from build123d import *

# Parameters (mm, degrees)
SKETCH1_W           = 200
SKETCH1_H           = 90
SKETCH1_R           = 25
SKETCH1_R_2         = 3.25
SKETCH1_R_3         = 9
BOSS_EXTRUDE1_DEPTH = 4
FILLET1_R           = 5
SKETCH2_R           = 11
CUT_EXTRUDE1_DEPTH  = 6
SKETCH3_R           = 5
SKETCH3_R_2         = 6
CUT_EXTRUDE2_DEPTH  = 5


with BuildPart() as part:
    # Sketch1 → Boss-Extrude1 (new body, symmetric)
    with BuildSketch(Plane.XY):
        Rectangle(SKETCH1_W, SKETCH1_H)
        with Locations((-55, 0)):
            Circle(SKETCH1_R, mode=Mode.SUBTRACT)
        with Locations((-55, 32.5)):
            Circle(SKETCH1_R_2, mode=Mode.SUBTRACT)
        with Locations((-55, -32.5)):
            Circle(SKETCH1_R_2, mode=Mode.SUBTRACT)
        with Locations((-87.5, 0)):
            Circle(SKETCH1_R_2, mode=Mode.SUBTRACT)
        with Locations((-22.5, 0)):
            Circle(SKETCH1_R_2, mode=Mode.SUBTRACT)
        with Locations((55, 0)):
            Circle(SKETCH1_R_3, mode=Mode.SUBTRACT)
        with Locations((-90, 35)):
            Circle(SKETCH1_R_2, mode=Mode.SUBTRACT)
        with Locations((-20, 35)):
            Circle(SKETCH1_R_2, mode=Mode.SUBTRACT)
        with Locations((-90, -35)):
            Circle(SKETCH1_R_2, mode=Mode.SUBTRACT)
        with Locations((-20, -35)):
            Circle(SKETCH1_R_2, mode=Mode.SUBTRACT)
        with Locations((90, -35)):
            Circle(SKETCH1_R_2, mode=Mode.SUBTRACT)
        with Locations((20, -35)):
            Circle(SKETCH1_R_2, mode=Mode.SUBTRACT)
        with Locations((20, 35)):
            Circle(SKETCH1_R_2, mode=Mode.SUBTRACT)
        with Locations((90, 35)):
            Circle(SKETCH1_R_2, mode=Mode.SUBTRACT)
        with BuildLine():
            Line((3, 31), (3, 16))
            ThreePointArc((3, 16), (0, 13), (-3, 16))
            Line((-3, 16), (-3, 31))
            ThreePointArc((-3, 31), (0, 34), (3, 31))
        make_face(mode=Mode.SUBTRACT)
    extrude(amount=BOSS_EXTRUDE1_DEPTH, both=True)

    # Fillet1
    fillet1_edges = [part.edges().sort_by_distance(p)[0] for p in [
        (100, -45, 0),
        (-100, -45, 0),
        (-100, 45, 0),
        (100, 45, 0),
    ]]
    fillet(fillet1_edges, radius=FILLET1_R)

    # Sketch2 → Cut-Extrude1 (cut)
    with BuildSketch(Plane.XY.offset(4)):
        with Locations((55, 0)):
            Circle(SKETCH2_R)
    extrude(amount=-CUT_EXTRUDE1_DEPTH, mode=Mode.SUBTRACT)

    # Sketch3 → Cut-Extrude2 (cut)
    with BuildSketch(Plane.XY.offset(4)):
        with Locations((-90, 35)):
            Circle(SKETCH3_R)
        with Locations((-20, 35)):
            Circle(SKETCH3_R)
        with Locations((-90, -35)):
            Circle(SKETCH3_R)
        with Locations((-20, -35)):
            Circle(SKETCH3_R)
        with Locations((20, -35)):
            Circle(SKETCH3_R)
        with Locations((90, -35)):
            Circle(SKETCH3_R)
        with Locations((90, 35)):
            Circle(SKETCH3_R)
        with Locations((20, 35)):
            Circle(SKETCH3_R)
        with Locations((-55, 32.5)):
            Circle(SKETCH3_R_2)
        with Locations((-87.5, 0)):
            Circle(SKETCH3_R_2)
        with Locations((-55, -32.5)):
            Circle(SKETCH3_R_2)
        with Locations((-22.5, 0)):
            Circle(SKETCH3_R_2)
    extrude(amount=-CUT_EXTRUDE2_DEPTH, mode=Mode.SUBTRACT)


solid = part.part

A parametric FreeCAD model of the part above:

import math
import FreeCAD as App
import Part
import Sketcher

V = App.Vector


def edges_at(feature, points):
    """Names of the edges that pass closest to the given points."""
    edges = feature.Shape.Edges
    near = lambda p: min(range(len(edges)), key=lambda i: edges[i].distToShape(Part.Vertex(*p))[0])
    return sorted({f"Edge{near(p) + 1}" for p in points})


def add_polygon(sketch, points):
    """Adds a closed chain of lines whose ends are joined by coincident constraints."""
    first, n = sketch.GeometryCount, len(points)
    for a, b in zip(points, points[1:] + points[:1]):
        sketch.addGeometry(Part.LineSegment(App.Vector(*a, 0), App.Vector(*b, 0)), False)
    for i in range(n):
        sketch.addConstraint(Sketcher.Constraint("Coincident", first + i, 2, first + (i + 1) % n, 1))

doc = App.newDocument("Part")
body = doc.addObject("PartDesign::Body", "Body")

sketch1 = body.newObject("Sketcher::SketchObject", "Sketch")
sketch1.AttachmentSupport = (doc.getObject("XY_Plane"), [""])
sketch1.MapMode = "FlatFace"
add_polygon(sketch1, [(-100, 45), (-100, -45), (100, -45), (100, 45)])
sketch1.addGeometry(Part.Circle(V(-90, -35, 0), V(0, 0, 1), 3.25), False)
sketch1.addGeometry(Part.Circle(V(-55, -32.5, 0), V(0, 0, 1), 3.25), False)
sketch1.addGeometry(Part.Circle(V(-20, -35, 0), V(0, 0, 1), 3.25), False)
sketch1.addGeometry(Part.Circle(V(20, -35, 0), V(0, 0, 1), 3.25), False)
sketch1.addGeometry(Part.Circle(V(90, -35, 0), V(0, 0, 1), 3.25), False)
sketch1.addGeometry(Part.Circle(V(-87.5, 0, 0), V(0, 0, 1), 3.25), False)
sketch1.addGeometry(Part.Circle(V(-55, 0, 0), V(0, 0, 1), 25), False)
sketch1.addGeometry(Part.Circle(V(-22.5, 0, 0), V(0, 0, 1), 3.25), False)
sketch1.addGeometry(Part.Circle(V(-90, 35, 0), V(0, 0, 1), 3.25), False)
sketch1.addGeometry(Part.Circle(V(-55, 32.5, 0), V(0, 0, 1), 3.25), False)
sketch1.addGeometry(Part.Circle(V(-20, 35, 0), V(0, 0, 1), 3.25), False)
sketch1.addGeometry(Part.Circle(V(55, 0, 0), V(0, 0, 1), 9), False)
sketch1.addGeometry(Part.ArcOfCircle(Part.Circle(V(0, 31, 0), V(0, 0, 1), 3), math.radians(0), math.radians(180)), False)
sketch1.addGeometry(Part.LineSegment(V(3, 31, 0), V(3, 16, 0)), False)
sketch1.addGeometry(Part.ArcOfCircle(Part.Circle(V(0, 16, 0), V(0, 0, 1), 3), math.radians(180), math.radians(360)), False)
sketch1.addGeometry(Part.LineSegment(V(-3, 16, 0), V(-3, 31, 0)), False)
sketch1.addGeometry(Part.Circle(V(20, 35, 0), V(0, 0, 1), 3.25), False)
sketch1.addGeometry(Part.Circle(V(90, 35, 0), V(0, 0, 1), 3.25), False)
sketch1.addConstraint(Sketcher.Constraint("Tangent", 16, 1, 17, 1))
sketch1.addConstraint(Sketcher.Constraint("Tangent", 17, 2, 18, 2))
sketch1.addConstraint(Sketcher.Constraint("Tangent", 18, 1, 19, 1))
sketch1.addConstraint(Sketcher.Constraint("Tangent", 19, 2, 16, 2))
sketch1.addConstraint(Sketcher.Constraint("Vertical", 0))
sketch1.addConstraint(Sketcher.Constraint("Horizontal", 1))
sketch1.addConstraint(Sketcher.Constraint("Vertical", 2))
sketch1.addConstraint(Sketcher.Constraint("Horizontal", 3))
sketch1.addConstraint(Sketcher.Constraint("Vertical", 17))
sketch1.addConstraint(Sketcher.Constraint("Vertical", 19))
sketch1.addConstraint(Sketcher.Constraint("Equal", 4, 5))
sketch1.addConstraint(Sketcher.Constraint("Equal", 5, 6))
sketch1.addConstraint(Sketcher.Constraint("Equal", 6, 7))
sketch1.addConstraint(Sketcher.Constraint("Equal", 7, 8))
sketch1.addConstraint(Sketcher.Constraint("Equal", 8, 9))
sketch1.addConstraint(Sketcher.Constraint("Equal", 9, 11))
sketch1.addConstraint(Sketcher.Constraint("Equal", 11, 12))
sketch1.addConstraint(Sketcher.Constraint("Equal", 12, 13))
sketch1.addConstraint(Sketcher.Constraint("Equal", 13, 14))
sketch1.addConstraint(Sketcher.Constraint("Equal", 14, 20))
sketch1.addConstraint(Sketcher.Constraint("Equal", 20, 21))
sketch1.addConstraint(Sketcher.Constraint("Symmetric", 8, 3, 12, 3, -1, 1))
sketch1.addConstraint(Sketcher.Constraint("Symmetric", 7, 3, 14, 3, -1, 1))
sketch1.addConstraint(Sketcher.Constraint("Symmetric", 10, 3, 15, 3, -1, 1))
sketch1.addConstraint(Sketcher.Constraint("Symmetric", 6, 3, 20, 3, -1, 1))
sketch1.addConstraint(Sketcher.Constraint("Symmetric", 4, 3, 21, 3, -1, 1))
sketch1.addConstraint(Sketcher.Constraint("Symmetric", 0, 2, 2, 2, -1, 1))
sketch1.addConstraint(Sketcher.Constraint("Symmetric", 6, 3, 7, 3, -2))
sketch1.addConstraint(Sketcher.Constraint("Symmetric", 4, 3, 8, 3, -2))
sketch1.addConstraint(Sketcher.Constraint("Symmetric", 5, 3, 13, 3, -1))
sketch1.addConstraint(Sketcher.Constraint("PointOnObject", 9, 3, -1))
sketch1.addConstraint(Sketcher.Constraint("PointOnObject", 10, 3, -1))
sketch1.addConstraint(Sketcher.Constraint("PointOnObject", 11, 3, -1))
sketch1.addConstraint(Sketcher.Constraint("PointOnObject", 16, 3, -2))
sketch1.addConstraint(Sketcher.Constraint("Horizontal", 4, 3, 6, 3))
sketch1.addConstraint(Sketcher.Constraint("Vertical", 5, 3, 10, 3))
sketch1.addConstraint(Sketcher.Constraint("Diameter", 10, 50.0))
sketch1.addConstraint(Sketcher.Constraint("Diameter", 15, 18.0))
sketch1.addConstraint(Sketcher.Constraint("Radius", 16, 3.0))
sketch1.addConstraint(Sketcher.Constraint("Diameter", 4, 6.5))
sketch1.addConstraint(Sketcher.Constraint("DistanceX", 1, 1, 1, 2, 200.0))
sketch1.addConstraint(Sketcher.Constraint("DistanceY", 0, 2, 0, 1, 90.0))
sketch1.addConstraint(Sketcher.Constraint("DistanceY", 17, 2, 17, 1, 15.0))
sketch1.addConstraint(Sketcher.Constraint("DistanceX", 4, 3, -1, 1, 90.0))
sketch1.addConstraint(Sketcher.Constraint("DistanceY", 4, 3, -1, 1, 35.0))
sketch1.addConstraint(Sketcher.Constraint("DistanceX", 5, 3, -1, 1, 55.0))
sketch1.addConstraint(Sketcher.Constraint("DistanceX", 6, 3, -1, 1, 20.0))
sketch1.addConstraint(Sketcher.Constraint("DistanceY", -1, 1, 16, 3, 31.0))
sketch1.addConstraint(Sketcher.Constraint("DistanceX", 9, 3, 11, 3, 65.0))
sketch1.addConstraint(Sketcher.Constraint("DistanceY", 5, 3, 13, 3, 65.0))
sketch1.addConstraint(Sketcher.Constraint("DistanceX", 9, 3, -1, 1, 87.5))
pad1 = body.newObject("PartDesign::Pad", "Pad")
pad1.Profile = sketch1
pad1.Length = 8
pad1.Midplane = True
doc.recompute()

fillet = body.newObject("PartDesign::Fillet", "Fillet")
fillet.Base = (pad1, edges_at(pad1, [
    (100, -45, 0),
    (-100, -45, 0),
    (-100, 45, 0),
    (100, 45, 0),
]))
fillet.Radius = 5

sketch2 = body.newObject("Sketcher::SketchObject", "Sketch001")
sketch2.AttachmentSupport = (doc.getObject("XY_Plane"), [""])
sketch2.MapMode = "FlatFace"
sketch2.AttachmentOffset = App.Placement(V(0, 0, 4), App.Rotation())
sketch2.addGeometry(Part.Circle(V(55, 0, 0), V(0, 0, 1), 11), False)
sketch2.addConstraint(Sketcher.Constraint("PointOnObject", 0, 3, -1))
sketch2.addConstraint(Sketcher.Constraint("Diameter", 0, 22.0))
sketch2.addConstraint(Sketcher.Constraint("DistanceX", -1, 1, 0, 3, 55.0))
pocket1 = body.newObject("PartDesign::Pocket", "Pocket")
pocket1.Profile = sketch2
pocket1.Length = 6

sketch3 = body.newObject("Sketcher::SketchObject", "Sketch002")
sketch3.AttachmentSupport = (doc.getObject("XY_Plane"), [""])
sketch3.MapMode = "FlatFace"
sketch3.AttachmentOffset = App.Placement(V(0, 0, 4), App.Rotation())
sketch3.addGeometry(Part.Circle(V(-90, 35, 0), V(0, 0, 1), 5), False)
sketch3.addGeometry(Part.Circle(V(-20, 35, 0), V(0, 0, 1), 5), False)
sketch3.addGeometry(Part.Circle(V(-90, -35, 0), V(0, 0, 1), 5), False)
sketch3.addGeometry(Part.Circle(V(-20, -35, 0), V(0, 0, 1), 5), False)
sketch3.addGeometry(Part.Circle(V(20, -35, 0), V(0, 0, 1), 5), False)
sketch3.addGeometry(Part.Circle(V(90, -35, 0), V(0, 0, 1), 5), False)
sketch3.addGeometry(Part.Circle(V(90, 35, 0), V(0, 0, 1), 5), False)
sketch3.addGeometry(Part.Circle(V(20, 35, 0), V(0, 0, 1), 5), False)
sketch3.addGeometry(Part.Circle(V(-55, 32.5, 0), V(0, 0, 1), 6), False)
sketch3.addGeometry(Part.Circle(V(-87.5, 0, 0), V(0, 0, 1), 6), False)
sketch3.addGeometry(Part.Circle(V(-55, -32.5, 0), V(0, 0, 1), 6), False)
sketch3.addGeometry(Part.Circle(V(-22.5, 0, 0), V(0, 0, 1), 6), False)
sketch3.addConstraint(Sketcher.Constraint("Equal", 0, 1))
sketch3.addConstraint(Sketcher.Constraint("Equal", 1, 2))
sketch3.addConstraint(Sketcher.Constraint("Equal", 2, 3))
sketch3.addConstraint(Sketcher.Constraint("Equal", 3, 4))
sketch3.addConstraint(Sketcher.Constraint("Equal", 4, 5))
sketch3.addConstraint(Sketcher.Constraint("Equal", 5, 6))
sketch3.addConstraint(Sketcher.Constraint("Equal", 6, 7))
sketch3.addConstraint(Sketcher.Constraint("Equal", 8, 9))
sketch3.addConstraint(Sketcher.Constraint("Equal", 9, 10))
sketch3.addConstraint(Sketcher.Constraint("Equal", 10, 11))
sketch3.addConstraint(Sketcher.Constraint("Symmetric", 1, 3, 4, 3, -1, 1))
sketch3.addConstraint(Sketcher.Constraint("Symmetric", 0, 3, 5, 3, -1, 1))
sketch3.addConstraint(Sketcher.Constraint("Symmetric", 2, 3, 6, 3, -1, 1))
sketch3.addConstraint(Sketcher.Constraint("Symmetric", 3, 3, 7, 3, -1, 1))
sketch3.addConstraint(Sketcher.Constraint("Symmetric", 3, 3, 4, 3, -2))
sketch3.addConstraint(Sketcher.Constraint("Symmetric", 2, 3, 5, 3, -2))
sketch3.addConstraint(Sketcher.Constraint("Symmetric", 8, 3, 10, 3, -1))
sketch3.addConstraint(Sketcher.Constraint("PointOnObject", 9, 3, -1))
sketch3.addConstraint(Sketcher.Constraint("PointOnObject", 11, 3, -1))
sketch3.addConstraint(Sketcher.Constraint("Horizontal", 0, 3, 1, 3))
sketch3.addConstraint(Sketcher.Constraint("Diameter", 0, 10.0))
sketch3.addConstraint(Sketcher.Constraint("Diameter", 8, 12.0))
sketch3.addConstraint(Sketcher.Constraint("DistanceX", 0, 3, -1, 1, 90.0))
sketch3.addConstraint(Sketcher.Constraint("DistanceY", -1, 1, 0, 3, 35.0))
sketch3.addConstraint(Sketcher.Constraint("DistanceX", 1, 3, -1, 1, 20.0))
sketch3.addConstraint(Sketcher.Constraint("DistanceX", 8, 3, -1, 1, 55.0))
sketch3.addConstraint(Sketcher.Constraint("DistanceY", 10, 3, 8, 3, 65.0))
sketch3.addConstraint(Sketcher.Constraint("DistanceX", 9, 3, -1, 1, 87.5))
sketch3.addConstraint(Sketcher.Constraint("DistanceX", 11, 3, -1, 1, 22.5))
pocket2 = body.newObject("PartDesign::Pocket", "Pocket001")
pocket2.Profile = sketch3
pocket2.Length = 5

doc.recompute()
